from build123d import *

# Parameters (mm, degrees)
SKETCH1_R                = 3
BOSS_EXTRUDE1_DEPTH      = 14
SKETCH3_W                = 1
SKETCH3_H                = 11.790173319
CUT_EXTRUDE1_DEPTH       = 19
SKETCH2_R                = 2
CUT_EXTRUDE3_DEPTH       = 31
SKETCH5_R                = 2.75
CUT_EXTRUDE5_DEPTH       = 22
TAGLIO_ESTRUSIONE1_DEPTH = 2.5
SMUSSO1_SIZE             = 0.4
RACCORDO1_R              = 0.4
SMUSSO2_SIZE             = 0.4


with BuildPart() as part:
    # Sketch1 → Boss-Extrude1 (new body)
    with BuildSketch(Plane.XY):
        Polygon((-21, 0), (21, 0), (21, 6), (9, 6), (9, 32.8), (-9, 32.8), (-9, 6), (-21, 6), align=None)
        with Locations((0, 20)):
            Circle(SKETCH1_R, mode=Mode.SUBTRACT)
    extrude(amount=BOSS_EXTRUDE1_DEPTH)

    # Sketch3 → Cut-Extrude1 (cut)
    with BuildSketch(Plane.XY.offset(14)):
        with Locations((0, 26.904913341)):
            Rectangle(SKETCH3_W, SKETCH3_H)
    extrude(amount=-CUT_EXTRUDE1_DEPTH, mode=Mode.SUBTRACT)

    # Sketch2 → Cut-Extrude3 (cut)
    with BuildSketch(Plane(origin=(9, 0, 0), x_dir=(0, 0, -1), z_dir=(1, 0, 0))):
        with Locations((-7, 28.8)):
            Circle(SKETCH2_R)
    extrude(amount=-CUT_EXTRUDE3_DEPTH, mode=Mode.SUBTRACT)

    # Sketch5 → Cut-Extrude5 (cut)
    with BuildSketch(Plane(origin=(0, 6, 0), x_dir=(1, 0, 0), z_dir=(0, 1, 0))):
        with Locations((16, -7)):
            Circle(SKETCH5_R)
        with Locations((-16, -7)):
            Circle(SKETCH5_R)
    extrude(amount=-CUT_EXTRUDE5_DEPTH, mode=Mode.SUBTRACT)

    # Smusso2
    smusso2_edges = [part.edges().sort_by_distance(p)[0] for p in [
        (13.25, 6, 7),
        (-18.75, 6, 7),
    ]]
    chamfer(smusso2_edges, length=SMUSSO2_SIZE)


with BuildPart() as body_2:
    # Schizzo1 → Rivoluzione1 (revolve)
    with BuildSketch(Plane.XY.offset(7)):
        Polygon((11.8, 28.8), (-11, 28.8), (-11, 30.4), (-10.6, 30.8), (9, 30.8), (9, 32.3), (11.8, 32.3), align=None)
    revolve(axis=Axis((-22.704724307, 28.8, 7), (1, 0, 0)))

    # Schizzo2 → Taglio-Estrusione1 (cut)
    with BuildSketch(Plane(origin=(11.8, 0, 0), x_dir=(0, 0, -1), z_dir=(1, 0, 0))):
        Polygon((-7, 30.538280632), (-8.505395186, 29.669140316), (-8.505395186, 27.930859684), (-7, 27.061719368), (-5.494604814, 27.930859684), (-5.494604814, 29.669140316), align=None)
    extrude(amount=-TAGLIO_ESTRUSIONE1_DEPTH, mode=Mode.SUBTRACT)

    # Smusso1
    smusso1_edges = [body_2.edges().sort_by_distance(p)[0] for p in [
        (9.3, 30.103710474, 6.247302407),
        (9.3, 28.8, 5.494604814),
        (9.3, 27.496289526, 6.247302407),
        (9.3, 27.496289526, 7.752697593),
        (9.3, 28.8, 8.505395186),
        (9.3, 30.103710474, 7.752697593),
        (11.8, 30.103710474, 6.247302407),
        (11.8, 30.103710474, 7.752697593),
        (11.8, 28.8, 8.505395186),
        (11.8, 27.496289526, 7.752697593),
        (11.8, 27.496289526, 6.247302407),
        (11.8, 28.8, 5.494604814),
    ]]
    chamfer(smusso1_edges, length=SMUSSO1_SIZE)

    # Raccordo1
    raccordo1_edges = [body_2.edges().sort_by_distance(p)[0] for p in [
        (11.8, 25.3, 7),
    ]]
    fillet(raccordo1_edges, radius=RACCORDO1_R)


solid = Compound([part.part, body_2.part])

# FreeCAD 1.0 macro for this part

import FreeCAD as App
import Part
import Sketcher

V = App.Vector
Q = App.Units.Quantity


def edges_at(feature, points):
    """Names of the edges that pass closest to the given points."""
    edges = feature.Shape.Edges
    near = lambda p: min(range(len(edges)), key=lambda i: edges[i].distToShape(Part.Vertex(*p))[0])
    return sorted({f"Edge{near(p) + 1}" for p in points})

doc = App.newDocument("Part")
params = doc.addObject("Spreadsheet::Sheet", "Params")
for row, (alias, value) in enumerate([
    ("sketch1_diameter", "6 mm"),
    ("sketch1_width", "42 mm"),
    ("sketch1_width2", "12 mm"),
    ("sketch1_height", "6 mm"),
    ("sketch1_height2", "26.8 mm"),
    ("pad1_length", "14 mm"),
    ("sketch2_width", "1 mm"),
    ("pocket1_length", "19 mm"),
    ("sketch3_diameter", "4 mm"),
    ("pocket2_length", "31 mm"),
    ("sketch4_diameter", "5.5 mm"),
    ("pocket3_length", "22 mm"),
    ("chamfer_size", "0.4 mm"),
    ("sketch5_width", "22.8 mm"),
    ("sketch5_width2", "2.8 mm"),
    ("sketch5_width3", "19.6 mm"),
    ("sketch5_height", "3.5 mm"),
    ("sketch5_height2", "1.5 mm"),
    ("revolution_angle", "360 deg"),
    ("pocket4_length", "2.5 mm"),
    ("chamfer2_size", "0.4 mm"),
    ("fillet_radius", "0.4 mm"),
], start=1):
    params.set(f"A{row}", alias)
    params.set(f"B{row}", "=" + value)
    params.setAlias(f"B{row}", alias)

body = doc.addObject("PartDesign::Body", "Body")

# Sketch on XY plane
sketch1 = body.newObject("Sketcher::SketchObject", "Sketch")
sketch1.AttachmentSupport = (doc.getObject("XY_Plane"), [""])
sketch1.MapMode = "FlatFace"
sketch1.addGeometry([
    Part.LineSegment(V(-21, 0, 0), V(21, 0, 0)),  # 0
    Part.LineSegment(V(21, 0, 0), V(21, 6, 0)),  # 1
    Part.LineSegment(V(21, 6, 0), V(9, 6, 0)),  # 2
    Part.LineSegment(V(9, 6, 0), V(9, 32.8, 0)),  # 3
    Part.LineSegment(V(9, 32.8, 0), V(-9, 32.8, 0)),  # 4
    Part.LineSegment(V(-9, 32.8, 0), V(-9, 6, 0)),  # 5
    Part.LineSegment(V(-9, 6, 0), V(-21, 6, 0)),  # 6
    Part.LineSegment(V(-21, 6, 0), V(-21, 0, 0)),  # 7
    Part.Circle(V(0, 20, 0), V(0, 0, 1), 3),  # 8
], False)
sketch1.addConstraint([
    Sketcher.Constraint("Coincident", 0, 2, 1, 1),
    Sketcher.Constraint("Coincident", 1, 2, 2, 1),
    Sketcher.Constraint("Coincident", 2, 2, 3, 1),
    Sketcher.Constraint("Coincident", 3, 2, 4, 1),
    Sketcher.Constraint("Coincident", 4, 2, 5, 1),
    Sketcher.Constraint("Coincident", 5, 2, 6, 1),
    Sketcher.Constraint("Coincident", 6, 2, 7, 1),
    Sketcher.Constraint("Coincident", 7, 2, 0, 1),
    Sketcher.Constraint("Horizontal", 0),
    Sketcher.Constraint("Vertical", 1),
    Sketcher.Constraint("Horizontal", 2),
    Sketcher.Constraint("Vertical", 3),
    Sketcher.Constraint("Horizontal", 4),
    Sketcher.Constraint("Vertical", 5),
    Sketcher.Constraint("Horizontal", 6),
    Sketcher.Constraint("Vertical", 7),
    Sketcher.Constraint("Symmetric", 0, 2, 7, 2, -1, 1),
    Sketcher.Constraint("Symmetric", 2, 2, 5, 2, -2),
    Sketcher.Constraint("PointOnObject", 8, 3, -2),
    Sketcher.Constraint("Diameter", 8, Q("6 mm")),
    Sketcher.Constraint("DistanceX", 0, 1, 0, 2, Q("42 mm")),
    Sketcher.Constraint("DistanceX", 2, 2, 2, 1, Q("12 mm")),
    Sketcher.Constraint("DistanceY", 1, 1, 1, 2, Q("6 mm")),
    Sketcher.Constraint("DistanceY", 3, 1, 3, 2, Q("26.8 mm")),
    Sketcher.Constraint("DistanceY", -1, 1, 8, 3, Q("20 mm")),
])
sketch1.setExpression("Constraints[19]", "Params.sketch1_diameter")
sketch1.setExpression("Constraints[20]", "Params.sketch1_width")
sketch1.setExpression("Constraints[21]", "Params.sketch1_width2")
sketch1.setExpression("Constraints[22]", "Params.sketch1_height")
sketch1.setExpression("Constraints[23]", "Params.sketch1_height2")
pad1 = body.newObject("PartDesign::Pad", "Pad")
pad1.Profile = sketch1
pad1.setExpression("Length", "Params.pad1_length")

# Sketch on XY plane
sketch2 = body.newObject("Sketcher::SketchObject", "Sketch001")
sketch2.AttachmentSupport = (doc.getObject("XY_Plane"), [""])
sketch2.MapMode = "FlatFace"
sketch2.AttachmentOffset = App.Placement(V(0, 0, 14), App.Rotation())
sketch2.addGeometry([
    Part.LineSegment(V(-0.5, 32.8, 0), V(-0.5, 21, 0)),
    Part.LineSegment(V(-0.5, 21, 0), V(0.5, 21, 0)),
    Part.LineSegment(V(0.5, 21, 0), V(0.5, 32.8, 0)),
    Part.LineSegment(V(0.5, 32.8, 0), V(-0.5, 32.8, 0)),
], False)
sketch2.addConstraint([
    Sketcher.Constraint("Coincident", 0, 2, 1, 1),
    Sketcher.Constraint("Coincident", 1, 2, 2, 1),
    Sketcher.Constraint("Coincident", 2, 2, 3, 1),
    Sketcher.Constraint("Coincident", 3, 2, 0, 1),
    Sketcher.Constraint("Vertical", 0),
    Sketcher.Constraint("Horizontal", 1),
    Sketcher.Constraint("Vertical", 2),
    Sketcher.Constraint("Horizontal", 3),
    Sketcher.Constraint("DistanceX", 1, 1, 1, 2, Q("1 mm")),
    Sketcher.Constraint("DistanceX", 0, 2, -1, 1, Q("0.5 mm")),
    Sketcher.Constraint("DistanceY", -1, 1, 2, 2, Q("32.8 mm")),
    Sketcher.Constraint("DistanceY", 0, 2, 0, 1, Q("11.790173 mm")),
])
sketch2.setExpression("Constraints[8]", "Params.sketch2_width")
pocket1 = body.newObject("PartDesign::Pocket", "Pocket")
pocket1.Profile = sketch2
pocket1.setExpression("Length", "Params.pocket1_length")

# Sketch on YZ plane
sketch3 = body.newObject("Sketcher::SketchObject", "Sketch002")
sketch3.AttachmentSupport = (doc.getObject("YZ_Plane"), [""])
sketch3.MapMode = "FlatFace"
sketch3.AttachmentOffset = App.Placement(V(0, 0, 9), App.Rotation())
sketch3.addGeometry(Part.Circle(V(28.8, 7, 0), V(0, 0, 1), 2), False)
sketch3.addConstraint([
    Sketcher.Constraint("Diameter", 0, Q("4 mm")),
    Sketcher.Constraint("DistanceY", -1, 1, 0, 3, Q("7 mm")),
    Sketcher.Constraint("DistanceX", -1, 1, 0, 3, Q("28.8 mm")),
])
sketch3.setExpression("Constraints[0]", "Params.sketch3_diameter")
pocket2 = body.newObject("PartDesign::Pocket", "Pocket001")
pocket2.Profile = sketch3
pocket2.setExpression("Length", "Params.pocket2_length")

# Sketch on XZ plane
sketch4 = body.newObject("Sketcher::SketchObject", "Sketch003")
sketch4.AttachmentSupport = (doc.getObject("XZ_Plane"), [""])
sketch4.MapMode = "FlatFace"
sketch4.AttachmentOffset = App.Placement(V(0, 0, -6), App.Rotation())
sketch4.addGeometry([
    Part.Circle(V(16, 7, 0), V(0, 0, 1), 2.8),
    Part.Circle(V(-16, 7, 0), V(0, 0, 1), 2.8),
], False)
sketch4.addConstraint([
    Sketcher.Constraint("Equal", 0, 1),
    Sketcher.Constraint("Symmetric", 0, 3, 1, 3, -2),
    Sketcher.Constraint("Diameter", 0, Q("5.5 mm")),
    Sketcher.Constraint("DistanceX", -1, 1, 0, 3, Q("16 mm")),
    Sketcher.Constraint("DistanceY", -1, 1, 0, 3, Q("7 mm")),
])
sketch4.setExpression("Constraints[2]", "Params.sketch4_diameter")
pocket3 = body.newObject("PartDesign::Pocket", "Pocket002")
pocket3.Profile = sketch4
pocket3.setExpression("Length", "Params.pocket3_length")
pocket3.Reversed = True
doc.recompute()

chamfer = body.newObject("PartDesign::Chamfer", "Chamfer")
chamfer.Base = (pocket3, edges_at(pocket3, [(13.25, 6, 7), (-18.75, 6, 7)]))
chamfer.setExpression("Size", "Params.chamfer_size")
body2 = doc.addObject("PartDesign::Body", "Body001")

# Sketch on XY plane
sketch5 = body2.newObject("Sketcher::SketchObject", "Sketch004")
sketch5.AttachmentSupport = (doc.getObject("XY_Plane001"), [""])
sketch5.MapMode = "FlatFace"
sketch5.AttachmentOffset = App.Placement(V(0, 0, 7), App.Rotation())
sketch5.addGeometry([
    Part.LineSegment(V(-11, 28.8, 0), V(11.8, 28.8, 0)),  # 0
    Part.LineSegment(V(11.8, 28.8, 0), V(11.8, 32.3, 0)),  # 1
    Part.LineSegment(V(11.8, 32.3, 0), V(9, 32.3, 0)),  # 2
    Part.LineSegment(V(9, 32.3, 0), V(9, 30.8, 0)),  # 3
    Part.LineSegment(V(9, 30.8, 0), V(-10.6, 30.8, 0)),  # 4
    Part.LineSegment(V(-10.6, 30.8, 0), V(-11, 30.4, 0)),  # 5
    Part.LineSegment(V(-11, 30.4, 0), V(-11, 28.8, 0)),  # 6
], False)
sketch5.addGeometry(Part.LineSegment(V(-11, 28.8, 0), V(11.8, 28.8, 0)), True)  # axis
sketch5.addConstraint([
    Sketcher.Constraint("Coincident", 0, 2, 1, 1),
    Sketcher.Constraint("Coincident", 1, 2, 2, 1),
    Sketcher.Constraint("Coincident", 2, 2, 3, 1),
    Sketcher.Constraint("Coincident", 3, 2, 4, 1),
    Sketcher.Constraint("Coincident", 4, 2, 5, 1),
    Sketcher.Constraint("Coincident", 5, 2, 6, 1),
    Sketcher.Constraint("Coincident", 6, 2, 0, 1),
    Sketcher.Constraint("Horizontal", 0),
    Sketcher.Constraint("Vertical", 1),
    Sketcher.Constraint("Horizontal", 2),
    Sketcher.Constraint("Vertical", 3),
    Sketcher.Constraint("Horizontal", 4),
    Sketcher.Constraint("Vertical", 6),
    Sketcher.Constraint("Horizontal", 7),
    Sketcher.Constraint("Coincident", 7, 1, 6, 2),
    Sketcher.Constraint("Vertical", 1, 2, 7, 2),
    Sketcher.Constraint("Angle", 5, Q("-135 deg")),
    Sketcher.Constraint("DistanceX", 0, 1, 0, 2, Q("22.8 mm")),
    Sketcher.Constraint("DistanceX", 2, 2, 2, 1, Q("2.8 mm")),
    Sketcher.Constraint("DistanceX", 4, 2, 4, 1, Q("19.6 mm")),
    Sketcher.Constraint("DistanceY", 1, 1, 1, 2, Q("3.5 mm")),
    Sketcher.Constraint("DistanceY", 3, 2, 3, 1, Q("1.5 mm")),
    Sketcher.Constraint("DistanceX", -1, 1, 2, 2, Q("9 mm")),
    Sketcher.Constraint("DistanceY", -1, 1, 0, 2, Q("28.8 mm")),
])
sketch5.setExpression("Constraints[17]", "Params.sketch5_width")
sketch5.setExpression("Constraints[18]", "Params.sketch5_width2")
sketch5.setExpression("Constraints[19]", "Params.sketch5_width3")
sketch5.setExpression("Constraints[20]", "Params.sketch5_height")
sketch5.setExpression("Constraints[21]", "Params.sketch5_height2")
revolution = body2.newObject("PartDesign::Revolution", "Revolution")
revolution.Profile = sketch5
revolution.ReferenceAxis = (sketch5, ["Axis0"])
revolution.setExpression("Angle", "Params.revolution_angle")

# Sketch on YZ plane
sketch6 = body2.newObject("Sketcher::SketchObject", "Sketch005")
sketch6.AttachmentSupport = (doc.getObject("YZ_Plane001"), [""])
sketch6.MapMode = "FlatFace"
sketch6.AttachmentOffset = App.Placement(V(0, 0, 11.8), App.Rotation())
sketch6.addGeometry([
    Part.LineSegment(V(30.5, 7, 0), V(29.7, 8.5, 0)),  # 0
    Part.LineSegment(V(29.7, 8.5, 0), V(27.9, 8.5, 0)),  # 1
    Part.LineSegment(V(27.9, 8.5, 0), V(27.1, 7, 0)),  # 2
    Part.LineSegment(V(27.1, 7, 0), V(27.9, 5.5, 0)),  # 3
    Part.LineSegment(V(27.9, 5.5, 0), V(29.7, 5.5, 0)),  # 4
    Part.LineSegment(V(29.7, 5.5, 0), V(30.5, 7, 0)),  # 5
], False)
sketch6.addConstraint([
    Sketcher.Constraint("Coincident", 0, 2, 1, 1),
    Sketcher.Constraint("Coincident", 1, 2, 2, 1),
    Sketcher.Constraint("Coincident", 2, 2, 3, 1),
    Sketcher.Constraint("Coincident", 3, 2, 4, 1),
    Sketcher.Constraint("Coincident", 4, 2, 5, 1),
    Sketcher.Constraint("Coincident", 5, 2, 0, 1),
    Sketcher.Constraint("Horizontal", 1),
    Sketcher.Constraint("Horizontal", 4),
    Sketcher.Constraint("Parallel", 0, 3),
    Sketcher.Constraint("Parallel", 2, 5),
    Sketcher.Constraint("Horizontal", 2, 2, 5, 2),
    Sketcher.Constraint("Vertical", 1, 2, 3, 2),
    Sketcher.Constraint("Vertical", 0, 2, 4, 2),
    Sketcher.Constraint("Angle", 0, Q("120 deg")),
    Sketcher.Constraint("DistanceY", -1, 1, 2, 2, Q("7 mm")),
    Sketcher.Constraint("DistanceX", 1, 2, 1, 1, Q("1.738281 mm")),
    Sketcher.Constraint("Distance", 0, Q("1.738281 mm")),
    Sketcher.Constraint("DistanceX", -1, 1, 0, 2, Q("29.66914 mm")),
])
pocket4 = body2.newObject("PartDesign::Pocket", "Pocket003")
pocket4.Profile = sketch6
pocket4.setExpression("Length", "Params.pocket4_length")
doc.recompute()

chamfer2 = body2.newObject("PartDesign::Chamfer", "Chamfer001")
chamfer2.Base = (pocket4, edges_at(pocket4, [
    (9.3, 30.104, 6.247),
    (9.3, 28.8, 5.495),
    (9.3, 27.496, 6.247),
    (9.3, 27.496, 7.753),
    (9.3, 28.8, 8.505),
    (9.3, 30.104, 7.753),
    (11.8, 30.104, 6.247),
    (11.8, 30.104, 7.753),
    (11.8, 28.8, 8.505),
    (11.8, 27.496, 7.753),
    (11.8, 27.496, 6.247),
    (11.8, 28.8, 5.495),
]))
chamfer2.setExpression("Size", "Params.chamfer2_size")
doc.recompute()

fillet = body2.newObject("PartDesign::Fillet", "Fillet")
fillet.Base = (chamfer2, edges_at(chamfer2, [(11.8, 25.3, 7)]))
fillet.setExpression("Radius", "Params.fillet_radius")

doc.recompute()
